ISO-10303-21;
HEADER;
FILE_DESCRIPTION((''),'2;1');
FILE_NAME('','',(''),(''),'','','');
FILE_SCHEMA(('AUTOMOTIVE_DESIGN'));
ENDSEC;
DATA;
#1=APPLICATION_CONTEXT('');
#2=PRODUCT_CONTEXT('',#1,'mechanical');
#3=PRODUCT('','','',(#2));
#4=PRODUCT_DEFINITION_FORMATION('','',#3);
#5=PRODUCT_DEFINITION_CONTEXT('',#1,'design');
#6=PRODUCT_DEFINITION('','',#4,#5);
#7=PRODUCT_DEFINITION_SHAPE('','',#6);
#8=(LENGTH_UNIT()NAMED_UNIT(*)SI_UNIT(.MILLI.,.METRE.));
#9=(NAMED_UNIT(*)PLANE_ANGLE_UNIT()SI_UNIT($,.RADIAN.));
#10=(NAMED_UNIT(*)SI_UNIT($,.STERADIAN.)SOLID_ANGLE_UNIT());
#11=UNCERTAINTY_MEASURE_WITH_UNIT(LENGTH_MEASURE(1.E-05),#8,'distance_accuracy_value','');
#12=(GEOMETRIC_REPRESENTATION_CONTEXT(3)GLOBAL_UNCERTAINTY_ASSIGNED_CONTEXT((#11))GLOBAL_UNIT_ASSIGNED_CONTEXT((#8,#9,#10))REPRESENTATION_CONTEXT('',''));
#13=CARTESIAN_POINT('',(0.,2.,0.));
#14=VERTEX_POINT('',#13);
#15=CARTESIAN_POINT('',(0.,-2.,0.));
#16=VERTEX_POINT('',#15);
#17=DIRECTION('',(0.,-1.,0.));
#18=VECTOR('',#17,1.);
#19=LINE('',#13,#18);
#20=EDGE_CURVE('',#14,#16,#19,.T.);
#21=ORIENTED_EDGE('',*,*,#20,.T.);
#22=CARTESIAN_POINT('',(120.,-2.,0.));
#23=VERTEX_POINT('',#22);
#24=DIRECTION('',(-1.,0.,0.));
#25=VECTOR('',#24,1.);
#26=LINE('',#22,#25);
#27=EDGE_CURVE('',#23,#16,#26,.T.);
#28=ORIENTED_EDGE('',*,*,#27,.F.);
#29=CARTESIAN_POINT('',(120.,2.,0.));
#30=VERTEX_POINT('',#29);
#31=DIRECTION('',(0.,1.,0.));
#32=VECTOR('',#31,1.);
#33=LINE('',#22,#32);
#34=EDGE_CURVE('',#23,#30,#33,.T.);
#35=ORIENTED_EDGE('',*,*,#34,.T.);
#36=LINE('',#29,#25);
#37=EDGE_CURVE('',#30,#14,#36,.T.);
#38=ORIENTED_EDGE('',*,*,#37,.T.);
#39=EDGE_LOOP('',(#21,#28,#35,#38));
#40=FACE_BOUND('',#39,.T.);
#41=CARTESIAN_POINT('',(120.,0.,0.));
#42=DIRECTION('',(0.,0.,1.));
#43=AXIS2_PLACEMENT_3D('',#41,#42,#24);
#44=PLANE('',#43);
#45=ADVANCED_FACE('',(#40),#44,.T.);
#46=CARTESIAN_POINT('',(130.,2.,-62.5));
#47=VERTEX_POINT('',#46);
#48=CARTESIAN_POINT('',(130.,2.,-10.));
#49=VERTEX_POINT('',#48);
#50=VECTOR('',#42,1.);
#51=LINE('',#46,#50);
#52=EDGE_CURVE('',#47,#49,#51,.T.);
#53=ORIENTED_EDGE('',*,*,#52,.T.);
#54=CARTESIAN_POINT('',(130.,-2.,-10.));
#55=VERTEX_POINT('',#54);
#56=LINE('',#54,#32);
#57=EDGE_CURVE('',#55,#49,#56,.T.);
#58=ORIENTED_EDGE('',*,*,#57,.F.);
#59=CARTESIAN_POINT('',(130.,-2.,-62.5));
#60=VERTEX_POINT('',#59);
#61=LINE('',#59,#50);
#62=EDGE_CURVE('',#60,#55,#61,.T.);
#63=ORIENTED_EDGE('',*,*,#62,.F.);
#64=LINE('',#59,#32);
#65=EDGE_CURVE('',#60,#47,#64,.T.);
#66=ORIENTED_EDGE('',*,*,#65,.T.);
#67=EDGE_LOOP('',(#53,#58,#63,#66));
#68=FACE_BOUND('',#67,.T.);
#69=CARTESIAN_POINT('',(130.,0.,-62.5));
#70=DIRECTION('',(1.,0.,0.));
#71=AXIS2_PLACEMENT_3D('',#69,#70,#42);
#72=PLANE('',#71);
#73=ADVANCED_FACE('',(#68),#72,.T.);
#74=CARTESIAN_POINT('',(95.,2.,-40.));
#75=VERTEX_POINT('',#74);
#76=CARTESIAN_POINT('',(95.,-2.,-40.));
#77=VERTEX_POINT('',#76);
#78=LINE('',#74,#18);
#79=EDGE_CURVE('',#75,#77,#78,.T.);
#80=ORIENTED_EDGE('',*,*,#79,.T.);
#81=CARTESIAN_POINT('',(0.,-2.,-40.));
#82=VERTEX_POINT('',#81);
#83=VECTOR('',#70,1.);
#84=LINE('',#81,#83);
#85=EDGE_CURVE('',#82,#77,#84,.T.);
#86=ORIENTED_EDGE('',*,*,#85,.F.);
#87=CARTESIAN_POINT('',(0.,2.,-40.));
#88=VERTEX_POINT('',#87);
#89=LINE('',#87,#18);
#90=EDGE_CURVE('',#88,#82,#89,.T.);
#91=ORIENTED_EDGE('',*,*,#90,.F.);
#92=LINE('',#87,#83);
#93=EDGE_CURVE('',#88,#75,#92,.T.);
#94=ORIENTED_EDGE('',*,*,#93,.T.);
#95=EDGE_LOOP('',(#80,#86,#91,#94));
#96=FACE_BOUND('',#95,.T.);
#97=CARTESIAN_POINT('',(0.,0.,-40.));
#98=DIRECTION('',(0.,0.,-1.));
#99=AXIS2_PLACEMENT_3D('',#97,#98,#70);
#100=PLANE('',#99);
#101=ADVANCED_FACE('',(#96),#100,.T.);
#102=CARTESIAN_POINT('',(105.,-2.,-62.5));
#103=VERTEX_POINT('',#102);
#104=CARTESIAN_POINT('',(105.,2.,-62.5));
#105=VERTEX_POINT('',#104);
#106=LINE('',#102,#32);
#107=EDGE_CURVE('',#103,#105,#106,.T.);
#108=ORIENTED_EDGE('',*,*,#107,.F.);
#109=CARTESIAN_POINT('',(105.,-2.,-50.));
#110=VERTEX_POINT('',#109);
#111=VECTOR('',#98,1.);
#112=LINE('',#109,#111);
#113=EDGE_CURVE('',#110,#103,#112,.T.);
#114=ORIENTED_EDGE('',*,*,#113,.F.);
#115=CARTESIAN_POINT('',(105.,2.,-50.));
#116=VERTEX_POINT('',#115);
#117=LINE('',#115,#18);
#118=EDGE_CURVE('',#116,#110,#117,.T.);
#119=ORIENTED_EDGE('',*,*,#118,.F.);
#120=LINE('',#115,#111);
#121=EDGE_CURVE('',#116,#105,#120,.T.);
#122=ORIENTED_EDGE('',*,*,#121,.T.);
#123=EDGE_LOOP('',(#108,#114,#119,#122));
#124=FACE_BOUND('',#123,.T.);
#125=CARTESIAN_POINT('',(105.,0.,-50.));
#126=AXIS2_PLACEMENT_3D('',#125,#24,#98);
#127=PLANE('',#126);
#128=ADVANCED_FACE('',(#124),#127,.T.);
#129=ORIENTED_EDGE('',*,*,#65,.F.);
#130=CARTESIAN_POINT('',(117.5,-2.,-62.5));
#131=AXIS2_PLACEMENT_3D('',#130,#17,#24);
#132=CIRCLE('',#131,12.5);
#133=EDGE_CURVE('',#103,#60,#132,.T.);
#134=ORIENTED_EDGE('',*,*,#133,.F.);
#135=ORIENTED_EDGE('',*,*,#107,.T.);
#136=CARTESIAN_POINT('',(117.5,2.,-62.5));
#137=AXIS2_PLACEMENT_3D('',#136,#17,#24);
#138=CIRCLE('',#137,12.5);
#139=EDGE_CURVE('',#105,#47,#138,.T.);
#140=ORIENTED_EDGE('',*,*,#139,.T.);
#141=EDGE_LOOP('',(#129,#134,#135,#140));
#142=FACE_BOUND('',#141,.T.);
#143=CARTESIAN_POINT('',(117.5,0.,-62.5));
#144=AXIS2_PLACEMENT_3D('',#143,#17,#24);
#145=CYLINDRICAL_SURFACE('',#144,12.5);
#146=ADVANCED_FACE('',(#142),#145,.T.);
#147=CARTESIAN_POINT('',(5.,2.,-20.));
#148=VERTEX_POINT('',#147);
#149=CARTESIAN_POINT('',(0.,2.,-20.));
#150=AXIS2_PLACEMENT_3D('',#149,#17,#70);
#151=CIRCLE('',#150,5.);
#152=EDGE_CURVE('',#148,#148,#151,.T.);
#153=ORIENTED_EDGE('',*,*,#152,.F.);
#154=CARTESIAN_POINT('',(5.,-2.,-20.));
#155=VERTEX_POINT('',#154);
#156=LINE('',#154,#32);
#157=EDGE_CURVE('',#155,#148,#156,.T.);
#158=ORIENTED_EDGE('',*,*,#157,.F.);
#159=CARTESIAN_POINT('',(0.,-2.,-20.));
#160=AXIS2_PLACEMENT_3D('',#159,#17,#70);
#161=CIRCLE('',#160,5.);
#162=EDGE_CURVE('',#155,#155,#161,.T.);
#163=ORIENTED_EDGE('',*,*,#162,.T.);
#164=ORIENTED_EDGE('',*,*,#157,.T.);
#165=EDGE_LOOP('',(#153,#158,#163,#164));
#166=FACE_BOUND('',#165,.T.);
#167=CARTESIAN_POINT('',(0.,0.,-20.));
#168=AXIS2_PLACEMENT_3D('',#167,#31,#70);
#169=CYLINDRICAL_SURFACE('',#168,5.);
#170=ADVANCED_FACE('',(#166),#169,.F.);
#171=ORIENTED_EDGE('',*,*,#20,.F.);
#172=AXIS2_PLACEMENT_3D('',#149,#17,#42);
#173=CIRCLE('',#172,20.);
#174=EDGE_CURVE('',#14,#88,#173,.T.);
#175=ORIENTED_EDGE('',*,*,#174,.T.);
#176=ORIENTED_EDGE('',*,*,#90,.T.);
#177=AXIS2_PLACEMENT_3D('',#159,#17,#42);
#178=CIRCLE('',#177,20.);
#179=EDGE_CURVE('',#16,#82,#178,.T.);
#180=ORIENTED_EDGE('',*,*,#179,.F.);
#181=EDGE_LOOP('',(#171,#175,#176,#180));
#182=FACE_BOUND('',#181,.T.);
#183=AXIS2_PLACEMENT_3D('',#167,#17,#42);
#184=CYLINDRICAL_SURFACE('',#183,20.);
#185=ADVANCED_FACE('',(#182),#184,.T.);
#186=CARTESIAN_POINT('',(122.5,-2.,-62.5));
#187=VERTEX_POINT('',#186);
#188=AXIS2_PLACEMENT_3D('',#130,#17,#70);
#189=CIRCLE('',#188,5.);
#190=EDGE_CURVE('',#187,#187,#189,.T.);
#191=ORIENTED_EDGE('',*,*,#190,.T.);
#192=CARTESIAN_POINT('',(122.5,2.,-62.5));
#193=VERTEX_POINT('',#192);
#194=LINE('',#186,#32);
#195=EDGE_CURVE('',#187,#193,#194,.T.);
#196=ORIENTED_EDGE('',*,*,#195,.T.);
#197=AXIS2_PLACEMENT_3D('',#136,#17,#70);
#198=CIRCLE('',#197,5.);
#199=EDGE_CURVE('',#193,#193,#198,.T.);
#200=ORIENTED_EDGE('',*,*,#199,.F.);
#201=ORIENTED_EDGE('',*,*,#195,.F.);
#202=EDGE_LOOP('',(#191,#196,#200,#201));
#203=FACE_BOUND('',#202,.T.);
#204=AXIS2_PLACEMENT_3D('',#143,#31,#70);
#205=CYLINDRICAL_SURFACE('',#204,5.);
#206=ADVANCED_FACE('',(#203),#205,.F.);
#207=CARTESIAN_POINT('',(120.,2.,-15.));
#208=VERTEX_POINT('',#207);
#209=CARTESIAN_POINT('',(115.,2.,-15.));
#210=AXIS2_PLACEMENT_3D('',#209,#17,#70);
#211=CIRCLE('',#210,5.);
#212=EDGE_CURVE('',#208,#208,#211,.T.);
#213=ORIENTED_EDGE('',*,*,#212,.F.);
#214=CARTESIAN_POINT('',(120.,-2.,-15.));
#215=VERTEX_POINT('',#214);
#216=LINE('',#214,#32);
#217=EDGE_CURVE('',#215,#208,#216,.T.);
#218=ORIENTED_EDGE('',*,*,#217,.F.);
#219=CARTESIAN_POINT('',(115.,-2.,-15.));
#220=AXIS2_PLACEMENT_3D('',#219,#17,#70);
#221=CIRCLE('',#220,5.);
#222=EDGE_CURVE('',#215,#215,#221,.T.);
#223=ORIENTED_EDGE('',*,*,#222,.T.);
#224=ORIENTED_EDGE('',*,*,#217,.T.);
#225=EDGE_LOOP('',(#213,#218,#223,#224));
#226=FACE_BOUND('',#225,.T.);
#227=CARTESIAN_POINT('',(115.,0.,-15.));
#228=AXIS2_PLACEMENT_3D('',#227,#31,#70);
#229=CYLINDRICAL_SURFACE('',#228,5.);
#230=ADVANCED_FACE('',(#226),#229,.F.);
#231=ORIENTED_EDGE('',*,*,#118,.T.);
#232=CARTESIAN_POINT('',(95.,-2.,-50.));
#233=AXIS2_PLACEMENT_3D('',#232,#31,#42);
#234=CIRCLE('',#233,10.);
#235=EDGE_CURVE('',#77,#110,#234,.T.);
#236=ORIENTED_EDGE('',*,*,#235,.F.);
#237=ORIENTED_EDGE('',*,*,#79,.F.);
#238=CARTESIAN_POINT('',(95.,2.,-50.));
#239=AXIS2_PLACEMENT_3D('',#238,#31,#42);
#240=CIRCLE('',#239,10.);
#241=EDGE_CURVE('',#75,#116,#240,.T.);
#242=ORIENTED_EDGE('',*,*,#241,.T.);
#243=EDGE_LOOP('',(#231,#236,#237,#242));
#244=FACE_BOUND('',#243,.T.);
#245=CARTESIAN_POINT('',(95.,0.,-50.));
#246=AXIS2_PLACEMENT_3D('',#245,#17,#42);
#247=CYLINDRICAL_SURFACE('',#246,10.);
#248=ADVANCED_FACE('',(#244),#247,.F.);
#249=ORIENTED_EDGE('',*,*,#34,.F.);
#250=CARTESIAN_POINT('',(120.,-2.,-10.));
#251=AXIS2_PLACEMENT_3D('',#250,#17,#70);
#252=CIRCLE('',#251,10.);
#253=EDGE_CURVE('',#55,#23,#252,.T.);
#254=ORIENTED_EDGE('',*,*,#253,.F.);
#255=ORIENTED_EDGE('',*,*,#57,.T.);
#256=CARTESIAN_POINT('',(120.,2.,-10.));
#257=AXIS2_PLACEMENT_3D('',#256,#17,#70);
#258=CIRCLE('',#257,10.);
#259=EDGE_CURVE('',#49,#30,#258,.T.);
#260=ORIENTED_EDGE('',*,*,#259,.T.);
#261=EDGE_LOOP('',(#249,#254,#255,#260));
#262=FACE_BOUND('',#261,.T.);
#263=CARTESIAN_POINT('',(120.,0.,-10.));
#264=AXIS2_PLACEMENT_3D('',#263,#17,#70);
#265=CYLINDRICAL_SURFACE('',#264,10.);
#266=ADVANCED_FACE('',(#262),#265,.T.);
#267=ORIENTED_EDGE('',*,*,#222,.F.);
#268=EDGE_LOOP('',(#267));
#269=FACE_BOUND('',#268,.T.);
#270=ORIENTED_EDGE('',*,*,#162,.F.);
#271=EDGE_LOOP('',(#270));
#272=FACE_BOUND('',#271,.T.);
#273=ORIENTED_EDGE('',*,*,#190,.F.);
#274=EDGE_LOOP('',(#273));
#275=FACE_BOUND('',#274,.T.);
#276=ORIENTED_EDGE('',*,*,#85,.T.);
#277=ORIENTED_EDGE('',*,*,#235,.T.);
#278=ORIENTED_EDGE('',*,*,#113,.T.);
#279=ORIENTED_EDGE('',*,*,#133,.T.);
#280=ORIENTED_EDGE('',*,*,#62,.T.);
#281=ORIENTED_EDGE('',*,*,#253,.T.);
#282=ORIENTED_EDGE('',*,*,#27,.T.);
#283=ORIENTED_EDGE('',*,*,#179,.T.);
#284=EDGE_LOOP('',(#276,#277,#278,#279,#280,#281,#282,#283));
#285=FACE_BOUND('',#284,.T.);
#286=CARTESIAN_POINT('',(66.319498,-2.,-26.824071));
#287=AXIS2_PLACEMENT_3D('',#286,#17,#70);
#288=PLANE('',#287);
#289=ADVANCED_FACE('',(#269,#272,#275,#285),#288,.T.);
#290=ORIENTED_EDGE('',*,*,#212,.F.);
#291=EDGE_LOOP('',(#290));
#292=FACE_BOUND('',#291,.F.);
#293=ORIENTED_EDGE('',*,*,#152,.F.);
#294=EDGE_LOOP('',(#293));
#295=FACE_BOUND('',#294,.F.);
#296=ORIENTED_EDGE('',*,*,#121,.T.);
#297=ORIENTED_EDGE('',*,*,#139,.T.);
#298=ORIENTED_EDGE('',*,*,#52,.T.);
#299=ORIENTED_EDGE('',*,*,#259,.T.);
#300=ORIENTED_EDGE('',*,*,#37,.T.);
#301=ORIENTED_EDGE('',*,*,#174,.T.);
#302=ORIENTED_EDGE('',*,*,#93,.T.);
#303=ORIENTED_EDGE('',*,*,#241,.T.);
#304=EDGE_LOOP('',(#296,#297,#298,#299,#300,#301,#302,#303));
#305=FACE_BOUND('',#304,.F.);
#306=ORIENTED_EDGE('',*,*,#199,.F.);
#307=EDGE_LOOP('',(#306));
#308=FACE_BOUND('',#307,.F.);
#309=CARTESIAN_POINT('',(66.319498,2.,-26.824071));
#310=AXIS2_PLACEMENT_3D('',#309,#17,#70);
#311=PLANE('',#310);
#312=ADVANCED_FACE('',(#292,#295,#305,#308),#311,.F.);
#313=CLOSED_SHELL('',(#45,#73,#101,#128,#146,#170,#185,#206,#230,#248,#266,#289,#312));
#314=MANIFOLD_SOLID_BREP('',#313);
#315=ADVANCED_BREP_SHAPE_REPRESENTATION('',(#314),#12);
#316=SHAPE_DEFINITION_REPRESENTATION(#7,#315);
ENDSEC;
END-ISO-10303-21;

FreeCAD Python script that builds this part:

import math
import FreeCAD as App
import Part
import Sketcher

doc = App.newDocument("Part")
body = doc.addObject("PartDesign::Body", "Body")

sketch1 = body.newObject("Sketcher::SketchObject", "Sketch")
sketch1.AttachmentSupport = (doc.getObject("XZ_Plane"), [""])
sketch1.MapMode = "FlatFace"
sketch1.addGeometry([
    Part.LineSegment(App.Vector(120, 0, 0), App.Vector(0, 0, 0)),
    Part.ArcOfCircle(Part.Circle(App.Vector(0, -20, 0), App.Vector(0, 0, 1), 20), math.radians(90), math.radians(270)),
    Part.LineSegment(App.Vector(0, -40, 0), App.Vector(95, -40, 0)),
    Part.ArcOfCircle(Part.Circle(App.Vector(95, -50, 0), App.Vector(0, 0, 1), 10), math.radians(0), math.radians(90)),
    Part.LineSegment(App.Vector(105, -50, 0), App.Vector(105, -62, 0)),
    Part.ArcOfCircle(Part.Circle(App.Vector(118, -62, 0), App.Vector(0, 0, 1), 12), math.radians(180), math.radians(360)),
    Part.LineSegment(App.Vector(130, -62, 0), App.Vector(130, -10, 0)),
    Part.ArcOfCircle(Part.Circle(App.Vector(120, -10, 0), App.Vector(0, 0, 1), 10), math.radians(0), math.radians(90)),
    Part.Circle(App.Vector(118, -62, 0), App.Vector(0, 0, 1), 5),
    Part.Circle(App.Vector(0, -20, 0), App.Vector(0, 0, 1), 5),
    Part.Circle(App.Vector(115, -15, 0), App.Vector(0, 0, 1), 5),
], False)
sketch1.addConstraint([
    Sketcher.Constraint("Tangent", 0, 2, 1, 1),
    Sketcher.Constraint("Tangent", 1, 2, 2, 1),
    Sketcher.Constraint("Tangent", 2, 2, 3, 2),
    Sketcher.Constraint("Tangent", 3, 1, 4, 1),
    Sketcher.Constraint("Tangent", 4, 2, 5, 1),
    Sketcher.Constraint("Tangent", 5, 2, 6, 1),
    Sketcher.Constraint("Tangent", 6, 2, 7, 1),
    Sketcher.Constraint("Tangent", 7, 2, 0, 1),
    Sketcher.Constraint("Horizontal", 0),
    Sketcher.Constraint("Horizontal", 2),
    Sketcher.Constraint("Vertical", 4),
    Sketcher.Constraint("Vertical", 6),
    Sketcher.Constraint("Coincident", 0, 2, -1, 1),
    Sketcher.Constraint("Coincident", 8, 3, 5, 3),
    Sketcher.Constraint("Coincident", 9, 3, 1, 3),
    Sketcher.Constraint("Equal", 3, 7),
    Sketcher.Constraint("Equal", 8, 9),
    Sketcher.Constraint("Equal", 9, 10),
    Sketcher.Constraint("Diameter", 8, 10.0),
    Sketcher.Constraint("Radius", 1, 20.0),
    Sketcher.Constraint("Radius", 3, 10.0),
    Sketcher.Constraint("Radius", 5, 12.5),
    Sketcher.Constraint("DistanceX", 0, 2, 0, 1, 120.0),
    Sketcher.Constraint("DistanceY", 4, 2, 4, 1, 12.5),
    Sketcher.Constraint("DistanceX", -1, 1, 10, 3, 115.0),
    Sketcher.Constraint("DistanceY", 10, 3, -1, 1, 15.0),
])
pad1 = body.newObject("PartDesign::Pad", "Pad")
pad1.Profile = sketch1
pad1.Length = 4
pad1.Midplane = True

doc.recompute()
